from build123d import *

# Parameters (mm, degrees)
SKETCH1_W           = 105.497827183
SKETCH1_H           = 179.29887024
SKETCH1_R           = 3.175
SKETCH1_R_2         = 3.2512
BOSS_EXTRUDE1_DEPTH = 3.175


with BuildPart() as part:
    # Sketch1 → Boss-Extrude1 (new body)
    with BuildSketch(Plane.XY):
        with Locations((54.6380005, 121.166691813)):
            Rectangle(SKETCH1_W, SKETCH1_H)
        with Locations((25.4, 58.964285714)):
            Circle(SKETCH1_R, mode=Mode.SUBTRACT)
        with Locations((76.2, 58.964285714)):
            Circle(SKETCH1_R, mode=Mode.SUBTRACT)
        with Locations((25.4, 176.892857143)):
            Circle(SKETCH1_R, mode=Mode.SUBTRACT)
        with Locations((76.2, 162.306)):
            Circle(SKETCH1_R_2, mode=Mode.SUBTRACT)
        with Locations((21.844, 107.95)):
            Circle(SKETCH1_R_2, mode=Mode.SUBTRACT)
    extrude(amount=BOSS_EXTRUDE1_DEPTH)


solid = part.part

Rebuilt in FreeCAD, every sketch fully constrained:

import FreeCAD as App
import Part
import Sketcher
from FreeCAD import Vector
Q = App.Units.Quantity

doc = App.newDocument("Part")
body = doc.addObject("PartDesign::Body", "Body")

sketch1 = body.newObject("Sketcher::SketchObject", "Sketch")
sketch1.AttachmentSupport = (doc.getObject("XY_Plane"), [""])
sketch1.MapMode = "FlatFace"
sketch1.addGeometry(Part.LineSegment(Vector(1.889087, 210.816127, 0), Vector(1.889087, 31.517257, 0)), False)
sketch1.addGeometry(Part.LineSegment(Vector(1.889087, 31.517257, 0), Vector(107.386914, 31.517257, 0)), False)
sketch1.addGeometry(Part.LineSegment(Vector(107.386914, 31.517257, 0), Vector(107.386914, 210.816127, 0)), False)
sketch1.addGeometry(Part.LineSegment(Vector(107.386914, 210.816127, 0), Vector(1.889087, 210.816127, 0)), False)
sketch1.addGeometry(Part.Circle(Vector(25.4, 58.964286, 0), Vector(0, 0, 1), 3.175), False)
sketch1.addGeometry(Part.Circle(Vector(21.844, 107.95, 0), Vector(0, 0, 1), 3.2512), False)
sketch1.addGeometry(Part.Circle(Vector(76.2, 58.964286, 0), Vector(0, 0, 1), 3.175), False)
sketch1.addGeometry(Part.Circle(Vector(25.4, 176.892857, 0), Vector(0, 0, 1), 3.175), False)
sketch1.addGeometry(Part.Circle(Vector(76.2, 162.306, 0), Vector(0, 0, 1), 3.2512), False)
sketch1.addConstraint(Sketcher.Constraint("Coincident", 0, 2, 1, 1))
sketch1.addConstraint(Sketcher.Constraint("Coincident", 1, 2, 2, 1))
sketch1.addConstraint(Sketcher.Constraint("Coincident", 2, 2, 3, 1))
sketch1.addConstraint(Sketcher.Constraint("Coincident", 3, 2, 0, 1))
sketch1.addConstraint(Sketcher.Constraint("Vertical", 0))
sketch1.addConstraint(Sketcher.Constraint("Horizontal", 1))
sketch1.addConstraint(Sketcher.Constraint("Vertical", 2))
sketch1.addConstraint(Sketcher.Constraint("Horizontal", 3))
sketch1.addConstraint(Sketcher.Constraint("Equal", 4, 6))
sketch1.addConstraint(Sketcher.Constraint("Equal", 6, 7))
sketch1.addConstraint(Sketcher.Constraint("Equal", 5, 8))
sketch1.addConstraint(Sketcher.Constraint("Horizontal", 4, 3, 6, 3))
sketch1.addConstraint(Sketcher.Constraint("Vertical", 4, 3, 7, 3))
sketch1.addConstraint(Sketcher.Constraint("Vertical", 6, 3, 8, 3))
sketch1.addConstraint(Sketcher.Constraint("Diameter", 4, Q("0.25 in")))
sketch1.addConstraint(Sketcher.Constraint("Diameter", 5, Q("0.256 in")))
sketch1.addConstraint(Sketcher.Constraint("DistanceX", -1, 1, 4, 3, Q("1 in")))
sketch1.addConstraint(Sketcher.Constraint("DistanceX", -1, 1, 6, 3, Q("3 in")))
sketch1.addConstraint(Sketcher.Constraint("DistanceX", -1, 1, 5, 3, Q("0.86 in")))
sketch1.addConstraint(Sketcher.Constraint("DistanceY", -1, 1, 5, 3, Q("4.25 in")))
sketch1.addConstraint(Sketcher.Constraint("DistanceY", -1, 1, 8, 3, Q("6.39 in")))
sketch1.addConstraint(Sketcher.Constraint("DistanceY", 0, 2, 0, 1, Q("179.29887 mm")))
sketch1.addConstraint(Sketcher.Constraint("DistanceY", 0, 2, 7, 3, Q("145.3756 mm")))
sketch1.addConstraint(Sketcher.Constraint("DistanceX", 1, 1, 1, 2, Q("105.497827 mm")))
sketch1.addConstraint(Sketcher.Constraint("DistanceY", 4, 3, 7, 3, Q("117.928571 mm")))
sketch1.addConstraint(Sketcher.Constraint("DistanceY", -1, 1, 4, 3, Q("58.964286 mm")))
sketch1.addConstraint(Sketcher.Constraint("DistanceX", -1, 1, 0, 2, Q("1.889087 mm")))
pad1 = body.newObject("PartDesign::Pad", "Pad")
pad1.Profile = sketch1
pad1.Length = Q("0.125 in")

doc.recompute()
